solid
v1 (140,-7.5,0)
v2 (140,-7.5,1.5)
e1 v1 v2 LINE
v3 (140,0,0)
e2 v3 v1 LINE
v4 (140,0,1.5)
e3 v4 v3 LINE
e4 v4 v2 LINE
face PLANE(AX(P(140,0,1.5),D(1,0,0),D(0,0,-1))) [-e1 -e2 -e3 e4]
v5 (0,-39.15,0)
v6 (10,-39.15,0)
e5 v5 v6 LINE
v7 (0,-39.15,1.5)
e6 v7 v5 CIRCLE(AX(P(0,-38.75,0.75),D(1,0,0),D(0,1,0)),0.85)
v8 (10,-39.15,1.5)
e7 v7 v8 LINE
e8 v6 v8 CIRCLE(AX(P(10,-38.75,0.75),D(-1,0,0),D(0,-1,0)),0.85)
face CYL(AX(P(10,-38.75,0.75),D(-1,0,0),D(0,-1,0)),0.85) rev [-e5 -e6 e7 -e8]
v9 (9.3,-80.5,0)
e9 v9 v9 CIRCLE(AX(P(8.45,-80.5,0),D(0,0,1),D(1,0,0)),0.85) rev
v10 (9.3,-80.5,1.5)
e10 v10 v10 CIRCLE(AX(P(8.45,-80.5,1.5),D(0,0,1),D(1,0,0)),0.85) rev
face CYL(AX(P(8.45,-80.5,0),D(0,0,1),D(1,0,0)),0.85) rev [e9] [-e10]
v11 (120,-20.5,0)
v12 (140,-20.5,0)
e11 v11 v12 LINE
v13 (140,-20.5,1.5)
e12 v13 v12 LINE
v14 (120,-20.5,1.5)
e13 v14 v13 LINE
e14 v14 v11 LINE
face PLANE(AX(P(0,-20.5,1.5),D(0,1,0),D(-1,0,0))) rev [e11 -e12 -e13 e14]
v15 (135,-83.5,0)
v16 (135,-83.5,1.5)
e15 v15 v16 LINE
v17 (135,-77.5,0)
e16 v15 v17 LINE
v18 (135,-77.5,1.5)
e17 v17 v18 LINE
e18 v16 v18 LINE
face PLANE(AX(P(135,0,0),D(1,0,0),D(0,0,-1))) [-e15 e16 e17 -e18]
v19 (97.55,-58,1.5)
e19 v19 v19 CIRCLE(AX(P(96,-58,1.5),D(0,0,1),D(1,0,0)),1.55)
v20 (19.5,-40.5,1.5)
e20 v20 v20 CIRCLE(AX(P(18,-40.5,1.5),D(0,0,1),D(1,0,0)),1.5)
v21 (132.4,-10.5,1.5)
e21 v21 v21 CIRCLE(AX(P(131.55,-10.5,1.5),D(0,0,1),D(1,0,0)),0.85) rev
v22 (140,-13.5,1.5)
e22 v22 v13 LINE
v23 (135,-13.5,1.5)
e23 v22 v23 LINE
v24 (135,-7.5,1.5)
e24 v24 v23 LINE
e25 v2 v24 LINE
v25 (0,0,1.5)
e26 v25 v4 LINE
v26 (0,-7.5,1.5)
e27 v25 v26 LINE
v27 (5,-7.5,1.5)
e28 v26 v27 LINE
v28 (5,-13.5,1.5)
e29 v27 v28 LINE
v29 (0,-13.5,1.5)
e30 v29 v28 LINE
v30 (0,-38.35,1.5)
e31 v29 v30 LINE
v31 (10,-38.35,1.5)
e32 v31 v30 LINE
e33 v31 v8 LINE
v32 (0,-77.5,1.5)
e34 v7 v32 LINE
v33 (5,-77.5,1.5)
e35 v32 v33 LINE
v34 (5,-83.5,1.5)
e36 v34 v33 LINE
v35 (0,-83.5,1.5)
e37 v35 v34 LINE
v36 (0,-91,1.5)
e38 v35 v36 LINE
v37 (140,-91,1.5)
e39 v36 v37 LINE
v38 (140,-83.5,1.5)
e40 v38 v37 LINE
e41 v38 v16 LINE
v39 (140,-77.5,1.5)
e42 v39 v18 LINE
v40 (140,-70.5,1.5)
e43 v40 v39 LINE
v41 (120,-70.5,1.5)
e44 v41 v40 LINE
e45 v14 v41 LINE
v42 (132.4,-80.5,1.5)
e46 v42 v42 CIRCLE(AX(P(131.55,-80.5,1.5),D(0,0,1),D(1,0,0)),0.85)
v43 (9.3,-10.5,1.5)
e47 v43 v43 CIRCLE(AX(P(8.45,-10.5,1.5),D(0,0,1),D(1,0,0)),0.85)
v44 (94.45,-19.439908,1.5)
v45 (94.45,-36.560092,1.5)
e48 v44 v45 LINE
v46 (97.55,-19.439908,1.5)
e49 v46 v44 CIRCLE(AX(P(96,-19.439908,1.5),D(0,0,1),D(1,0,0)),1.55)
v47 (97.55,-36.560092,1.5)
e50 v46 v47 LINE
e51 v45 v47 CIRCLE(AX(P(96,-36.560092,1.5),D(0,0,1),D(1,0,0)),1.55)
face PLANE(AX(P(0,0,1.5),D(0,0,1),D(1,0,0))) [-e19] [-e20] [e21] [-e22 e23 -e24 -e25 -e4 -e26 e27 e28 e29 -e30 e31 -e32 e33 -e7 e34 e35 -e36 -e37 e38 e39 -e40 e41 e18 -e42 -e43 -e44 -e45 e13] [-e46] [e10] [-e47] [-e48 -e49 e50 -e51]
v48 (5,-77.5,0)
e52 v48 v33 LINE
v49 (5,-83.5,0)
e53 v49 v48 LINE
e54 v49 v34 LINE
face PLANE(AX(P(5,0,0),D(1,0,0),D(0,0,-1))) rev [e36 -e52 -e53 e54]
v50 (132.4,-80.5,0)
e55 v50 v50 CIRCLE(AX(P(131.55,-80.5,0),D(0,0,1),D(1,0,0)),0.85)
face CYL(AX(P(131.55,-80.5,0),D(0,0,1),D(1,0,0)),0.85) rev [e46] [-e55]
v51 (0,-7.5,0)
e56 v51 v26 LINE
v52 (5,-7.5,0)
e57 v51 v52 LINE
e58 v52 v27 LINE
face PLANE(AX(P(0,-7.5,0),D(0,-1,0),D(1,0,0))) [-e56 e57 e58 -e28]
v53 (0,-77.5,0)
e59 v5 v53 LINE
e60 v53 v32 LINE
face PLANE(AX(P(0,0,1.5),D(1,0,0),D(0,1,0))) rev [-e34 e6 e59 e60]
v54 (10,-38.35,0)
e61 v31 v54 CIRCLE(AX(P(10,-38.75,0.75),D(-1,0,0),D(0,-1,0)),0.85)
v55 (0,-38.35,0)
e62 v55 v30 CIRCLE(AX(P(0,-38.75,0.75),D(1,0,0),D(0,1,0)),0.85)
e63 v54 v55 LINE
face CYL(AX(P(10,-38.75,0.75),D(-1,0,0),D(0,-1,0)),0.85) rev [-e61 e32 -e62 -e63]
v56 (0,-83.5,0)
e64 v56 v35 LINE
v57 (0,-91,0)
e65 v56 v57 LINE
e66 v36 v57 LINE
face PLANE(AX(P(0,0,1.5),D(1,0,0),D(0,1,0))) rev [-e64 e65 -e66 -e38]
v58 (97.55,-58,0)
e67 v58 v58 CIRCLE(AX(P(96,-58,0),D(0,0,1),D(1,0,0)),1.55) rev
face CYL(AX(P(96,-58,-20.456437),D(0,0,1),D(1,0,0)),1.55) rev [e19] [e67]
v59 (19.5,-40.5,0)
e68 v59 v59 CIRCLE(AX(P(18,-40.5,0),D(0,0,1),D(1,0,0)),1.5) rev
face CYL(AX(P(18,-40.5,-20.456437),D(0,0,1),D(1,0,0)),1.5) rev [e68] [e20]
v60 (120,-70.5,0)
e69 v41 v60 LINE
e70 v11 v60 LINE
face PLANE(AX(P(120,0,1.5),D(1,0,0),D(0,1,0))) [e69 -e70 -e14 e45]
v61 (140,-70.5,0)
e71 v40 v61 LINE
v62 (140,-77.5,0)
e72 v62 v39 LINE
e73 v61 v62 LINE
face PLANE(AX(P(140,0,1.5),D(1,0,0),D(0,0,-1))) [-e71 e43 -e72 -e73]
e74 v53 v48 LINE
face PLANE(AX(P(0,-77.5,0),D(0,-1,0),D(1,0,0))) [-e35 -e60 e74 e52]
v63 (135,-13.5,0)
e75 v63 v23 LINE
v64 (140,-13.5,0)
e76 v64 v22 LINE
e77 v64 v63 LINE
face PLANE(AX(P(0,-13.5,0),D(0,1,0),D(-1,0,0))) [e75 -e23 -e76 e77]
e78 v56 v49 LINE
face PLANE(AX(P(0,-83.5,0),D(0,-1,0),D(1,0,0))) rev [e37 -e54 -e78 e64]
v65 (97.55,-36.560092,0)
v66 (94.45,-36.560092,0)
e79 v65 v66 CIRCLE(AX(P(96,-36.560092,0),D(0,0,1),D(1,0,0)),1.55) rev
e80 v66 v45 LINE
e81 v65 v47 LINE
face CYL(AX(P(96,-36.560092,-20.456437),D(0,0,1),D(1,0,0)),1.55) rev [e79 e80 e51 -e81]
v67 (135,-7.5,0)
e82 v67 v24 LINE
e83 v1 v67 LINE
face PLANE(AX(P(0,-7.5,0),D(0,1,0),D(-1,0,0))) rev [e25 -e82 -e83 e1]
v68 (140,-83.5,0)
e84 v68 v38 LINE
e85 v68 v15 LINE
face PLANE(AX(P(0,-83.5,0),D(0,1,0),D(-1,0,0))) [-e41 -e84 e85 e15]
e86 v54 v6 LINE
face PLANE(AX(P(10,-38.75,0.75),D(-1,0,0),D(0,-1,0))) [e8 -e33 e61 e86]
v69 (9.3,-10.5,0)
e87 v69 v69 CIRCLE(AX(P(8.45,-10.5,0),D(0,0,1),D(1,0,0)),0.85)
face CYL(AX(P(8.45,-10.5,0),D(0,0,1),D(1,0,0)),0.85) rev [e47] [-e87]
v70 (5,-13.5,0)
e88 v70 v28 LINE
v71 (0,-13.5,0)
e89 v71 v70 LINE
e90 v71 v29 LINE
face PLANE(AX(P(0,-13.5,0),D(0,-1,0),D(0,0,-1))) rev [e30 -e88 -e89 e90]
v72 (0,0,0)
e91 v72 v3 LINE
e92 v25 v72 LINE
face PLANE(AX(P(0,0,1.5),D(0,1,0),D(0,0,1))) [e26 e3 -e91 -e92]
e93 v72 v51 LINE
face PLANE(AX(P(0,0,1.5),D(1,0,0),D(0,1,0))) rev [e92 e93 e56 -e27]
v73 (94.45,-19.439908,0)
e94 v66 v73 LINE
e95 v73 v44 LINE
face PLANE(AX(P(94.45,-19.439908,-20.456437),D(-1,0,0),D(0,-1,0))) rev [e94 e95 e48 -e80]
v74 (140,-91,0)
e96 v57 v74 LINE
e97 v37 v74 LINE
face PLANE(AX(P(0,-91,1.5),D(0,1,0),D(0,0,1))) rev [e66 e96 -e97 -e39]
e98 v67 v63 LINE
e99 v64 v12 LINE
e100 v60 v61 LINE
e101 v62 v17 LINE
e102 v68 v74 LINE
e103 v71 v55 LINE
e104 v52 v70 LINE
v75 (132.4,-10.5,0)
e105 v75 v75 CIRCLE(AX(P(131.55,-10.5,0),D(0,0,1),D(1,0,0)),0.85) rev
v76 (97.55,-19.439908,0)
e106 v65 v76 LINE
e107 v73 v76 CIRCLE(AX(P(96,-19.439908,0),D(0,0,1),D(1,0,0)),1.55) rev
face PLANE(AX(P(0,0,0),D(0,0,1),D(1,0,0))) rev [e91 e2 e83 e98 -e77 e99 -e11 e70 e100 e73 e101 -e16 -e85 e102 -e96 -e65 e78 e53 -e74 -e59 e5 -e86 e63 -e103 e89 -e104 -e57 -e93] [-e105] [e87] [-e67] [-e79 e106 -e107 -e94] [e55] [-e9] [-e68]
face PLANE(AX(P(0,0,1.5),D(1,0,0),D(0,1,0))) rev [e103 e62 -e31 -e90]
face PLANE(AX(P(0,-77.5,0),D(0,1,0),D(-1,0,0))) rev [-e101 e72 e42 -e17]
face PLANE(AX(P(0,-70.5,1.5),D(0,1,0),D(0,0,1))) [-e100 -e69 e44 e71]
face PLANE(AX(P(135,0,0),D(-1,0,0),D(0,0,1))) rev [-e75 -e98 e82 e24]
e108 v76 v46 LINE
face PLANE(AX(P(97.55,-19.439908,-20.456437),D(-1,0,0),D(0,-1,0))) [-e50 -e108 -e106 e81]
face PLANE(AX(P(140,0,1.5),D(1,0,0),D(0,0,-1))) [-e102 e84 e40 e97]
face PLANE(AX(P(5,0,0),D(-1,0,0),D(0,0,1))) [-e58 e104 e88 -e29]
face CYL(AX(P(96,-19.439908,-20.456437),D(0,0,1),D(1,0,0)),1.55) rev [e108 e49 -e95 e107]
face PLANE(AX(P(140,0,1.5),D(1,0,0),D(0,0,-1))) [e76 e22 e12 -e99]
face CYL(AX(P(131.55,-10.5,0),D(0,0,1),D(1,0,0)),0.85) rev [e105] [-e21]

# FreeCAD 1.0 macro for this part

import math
import FreeCAD as App
import Part
import Sketcher


def add_polygon(sketch, points):
    """Adds a closed chain of lines whose ends are joined by coincident constraints."""
    first, n = sketch.GeometryCount, len(points)
    for a, b in zip(points, points[1:] + points[:1]):
        sketch.addGeometry(Part.LineSegment(App.Vector(*a, 0), App.Vector(*b, 0)), False)
    for i in range(n):
        sketch.addConstraint(Sketcher.Constraint("Coincident", first + i, 2, first + (i + 1) % n, 1))

doc = App.newDocument("Part")
body = doc.addObject("PartDesign::Body", "Body")

# Sketch on XY plane
sketch1 = body.newObject("Sketcher::SketchObject", "Sketch")
sketch1.AttachmentSupport = (doc.getObject("XY_Plane"), [""])
sketch1.MapMode = "FlatFace"
add_polygon(sketch1, [(140, 0), (0, 0), (0, -91), (140, -91), (140, -70), (120, -70), (120, -20), (140, -20)])  # lines 0-7
sketch1.addConstraint(Sketcher.Constraint("Horizontal", 0))
sketch1.addConstraint(Sketcher.Constraint("Vertical", 1))
sketch1.addConstraint(Sketcher.Constraint("Horizontal", 2))
sketch1.addConstraint(Sketcher.Constraint("Vertical", 3))
sketch1.addConstraint(Sketcher.Constraint("Horizontal", 4))
sketch1.addConstraint(Sketcher.Constraint("Vertical", 5))
sketch1.addConstraint(Sketcher.Constraint("Horizontal", 6))
sketch1.addConstraint(Sketcher.Constraint("Vertical", 7))
sketch1.addConstraint(Sketcher.Constraint("Coincident", 0, 2, -1, 1))
sketch1.addConstraint(Sketcher.Constraint("Vertical", 3, 2, 6, 2))
sketch1.addConstraint(Sketcher.Constraint("Equal", 3, 7))
sketch1.addConstraint(Sketcher.Constraint("DistanceX", 0, 2, 0, 1, 140.0))
sketch1.addConstraint(Sketcher.Constraint("DistanceX", 4, 2, 4, 1, 20.0))
sketch1.addConstraint(Sketcher.Constraint("DistanceY", 1, 2, 1, 1, 91.0))
sketch1.addConstraint(Sketcher.Constraint("DistanceY", 5, 1, 5, 2, 50.0))
pad1 = body.newObject("PartDesign::Pad", "Pad")
pad1.Profile = sketch1
pad1.Length = 1.5

# Sketch on XY plane
sketch2 = body.newObject("Sketcher::SketchObject", "Sketch001")
sketch2.AttachmentSupport = (doc.getObject("XY_Plane"), [""])
sketch2.MapMode = "FlatFace"
sketch2.AttachmentOffset = App.Placement(App.Vector(0, 0, 1.5), App.Rotation())
sketch2.addGeometry(Part.Circle(App.Vector(18, -40.5, 0), App.Vector(0, 0, 1), 1.5), False)
sketch2.addGeometry(Part.Circle(App.Vector(96, -58, 0), App.Vector(0, 0, 1), 1.6), False)
sketch2.addGeometry(Part.LineSegment(App.Vector(97.5, -36.6, 0), App.Vector(97.5, -19.4, 0)), False)
sketch2.addGeometry(Part.ArcOfCircle(Part.Circle(App.Vector(96, -19.4, 0), App.Vector(0, 0, 1), 1.6), math.radians(0), math.radians(180)), False)
sketch2.addGeometry(Part.LineSegment(App.Vector(94.5, -19.4, 0), App.Vector(94.5, -36.6, 0)), False)
sketch2.addGeometry(Part.ArcOfCircle(Part.Circle(App.Vector(96, -36.6, 0), App.Vector(0, 0, 1), 1.6), math.radians(180), math.radians(360)), False)
sketch2.addConstraint(Sketcher.Constraint("Tangent", 2, 2, 3, 1))
sketch2.addConstraint(Sketcher.Constraint("Tangent", 3, 2, 4, 1))
sketch2.addConstraint(Sketcher.Constraint("Tangent", 4, 2, 5, 1))
sketch2.addConstraint(Sketcher.Constraint("Tangent", 5, 2, 2, 1))
sketch2.addConstraint(Sketcher.Constraint("Vertical", 2))
sketch2.addConstraint(Sketcher.Constraint("Vertical", 4))
sketch2.addConstraint(Sketcher.Constraint("Equal", 1, 3))
sketch2.addConstraint(Sketcher.Constraint("Vertical", 1, 3, 3, 3))
sketch2.addConstraint(Sketcher.Constraint("Diameter", 0, 3.0))
sketch2.addConstraint(Sketcher.Constraint("Diameter", 1, 3.1))
sketch2.addConstraint(Sketcher.Constraint("DistanceX", -1, 1, 0, 3, 18.0))
sketch2.addConstraint(Sketcher.Constraint("DistanceX", -1, 1, 1, 3, 96.0))
sketch2.addConstraint(Sketcher.Constraint("DistanceY", 1, 3, -1, 1, 58.0))
sketch2.addConstraint(Sketcher.Constraint("DistanceY", 0, 3, -1, 1, 40.5))
sketch2.addConstraint(Sketcher.Constraint("DistanceY", 2, 1, 2, 2, 17.120183))
sketch2.addConstraint(Sketcher.Constraint("DistanceY", 3, 3, -1, 1, 19.439908))
pocket1 = body.newObject("PartDesign::Pocket", "Pocket")
pocket1.Profile = sketch2
pocket1.Length = 1.5

# Sketch on XY plane
sketch3 = body.newObject("Sketcher::SketchObject", "Sketch002")
sketch3.AttachmentSupport = (doc.getObject("XY_Plane"), [""])
sketch3.MapMode = "FlatFace"
sketch3.AttachmentOffset = App.Placement(App.Vector(0, 0, 1.5), App.Rotation())
add_polygon(sketch3, [(0, -7.5), (0, -13.5), (5, -13.5), (5, -7.5)])  # lines 0-3
add_polygon(sketch3, [(0, -77.5), (0, -83.5), (5, -83.5), (5, -77.5)])  # lines 4-7
add_polygon(sketch3, [(135, -7.5), (135, -13.5), (140, -13.5), (140, -7.5)])  # lines 8-11
add_polygon(sketch3, [(135, -77.5), (135, -83.5), (140, -83.5), (140, -77.5)])  # lines 12-15
sketch3.addGeometry(Part.Circle(App.Vector(8.4, -10.5, 0), App.Vector(0, 0, 1), 0.8), False)  # 16
sketch3.addGeometry(Part.Circle(App.Vector(8.4, -80.5, 0), App.Vector(0, 0, 1), 0.8), False)  # 17
sketch3.addGeometry(Part.Circle(App.Vector(131.6, -10.5, 0), App.Vector(0, 0, 1), 0.8), False)  # 18
sketch3.addGeometry(Part.Circle(App.Vector(131.6, -80.5, 0), App.Vector(0, 0, 1), 0.8), False)  # 19
sketch3.addConstraint(Sketcher.Constraint("Vertical", 0))
sketch3.addConstraint(Sketcher.Constraint("Horizontal", 1))
sketch3.addConstraint(Sketcher.Constraint("Vertical", 2))
sketch3.addConstraint(Sketcher.Constraint("Horizontal", 3))
sketch3.addConstraint(Sketcher.Constraint("Vertical", 4))
sketch3.addConstraint(Sketcher.Constraint("Horizontal", 5))
sketch3.addConstraint(Sketcher.Constraint("Vertical", 6))
sketch3.addConstraint(Sketcher.Constraint("Horizontal", 7))
sketch3.addConstraint(Sketcher.Constraint("Vertical", 8))
sketch3.addConstraint(Sketcher.Constraint("Horizontal", 9))
sketch3.addConstraint(Sketcher.Constraint("Vertical", 10))
sketch3.addConstraint(Sketcher.Constraint("Horizontal", 11))
sketch3.addConstraint(Sketcher.Constraint("Vertical", 12))
sketch3.addConstraint(Sketcher.Constraint("Horizontal", 13))
sketch3.addConstraint(Sketcher.Constraint("Vertical", 14))
sketch3.addConstraint(Sketcher.Constraint("Horizontal", 15))
sketch3.addConstraint(Sketcher.Constraint("Equal", 16, 17))
sketch3.addConstraint(Sketcher.Constraint("Equal", 17, 18))
sketch3.addConstraint(Sketcher.Constraint("Equal", 18, 19))
sketch3.addConstraint(Sketcher.Constraint("PointOnObject", 0, 2, -2))
sketch3.addConstraint(Sketcher.Constraint("PointOnObject", 4, 2, -2))
sketch3.addConstraint(Sketcher.Constraint("Horizontal", 16, 3, 18, 3))
sketch3.addConstraint(Sketcher.Constraint("Horizontal", 17, 3, 19, 3))
sketch3.addConstraint(Sketcher.Constraint("Horizontal", 1, 2, 8, 2))
sketch3.addConstraint(Sketcher.Constraint("Horizontal", 3, 2, 10, 2))
sketch3.addConstraint(Sketcher.Constraint("Horizontal", 5, 2, 12, 2))
sketch3.addConstraint(Sketcher.Constraint("Horizontal", 7, 2, 14, 2))
sketch3.addConstraint(Sketcher.Constraint("Vertical", 16, 3, 17, 3))
sketch3.addConstraint(Sketcher.Constraint("Vertical", 18, 3, 19, 3))
sketch3.addConstraint(Sketcher.Constraint("Vertical", 2, 2, 5, 2))
sketch3.addConstraint(Sketcher.Constraint("Vertical", 11, 2, 12, 2))
sketch3.addConstraint(Sketcher.Constraint("Vertical", 10, 2, 13, 2))
sketch3.addConstraint(Sketcher.Constraint("Equal", 7, 9))
sketch3.addConstraint(Sketcher.Constraint("Equal", 2, 4))
sketch3.addConstraint(Sketcher.Constraint("Diameter", 16, 1.7))
sketch3.addConstraint(Sketcher.Constraint("DistanceX", 1, 1, 1, 2, 5.0))
sketch3.addConstraint(Sketcher.Constraint("DistanceY", 0, 2, 0, 1, 6.0))
sketch3.addConstraint(Sketcher.Constraint("DistanceX", -1, 1, 8, 2, 135.0))
sketch3.addConstraint(Sketcher.Constraint("DistanceY", 17, 3, 16, 3, 70.0))
sketch3.addConstraint(Sketcher.Constraint("DistanceY", 0, 2, 16, 3, 3.0))
sketch3.addConstraint(Sketcher.Constraint("DistanceY", 4, 2, 17, 3, 3.0))
sketch3.addConstraint(Sketcher.Constraint("DistanceY", 16, 3, -1, 1, 10.5))
sketch3.addConstraint(Sketcher.Constraint("DistanceX", 16, 3, 18, 3, 123.1))
sketch3.addConstraint(Sketcher.Constraint("DistanceX", -1, 1, 16, 3, 8.45))
pocket2 = body.newObject("PartDesign::Pocket", "Pocket001")
pocket2.Profile = sketch3
pocket2.Type = "ThroughAll"

# Sketch on YZ plane
sketch4 = body.newObject("Sketcher::SketchObject", "Sketch003")
sketch4.AttachmentSupport = (doc.getObject("YZ_Plane"), [""])
sketch4.MapMode = "FlatFace"
sketch4.addGeometry(Part.Circle(App.Vector(-38.8, 0.8, 0), App.Vector(0, 0, 1), 0.8), False)
sketch4.addGeometry(Part.Circle(App.Vector(31.2, 0.8, 0), App.Vector(0, 0, 1), 0.8), False)
sketch4.addConstraint(Sketcher.Constraint("Equal", 0, 1))
sketch4.addConstraint(Sketcher.Constraint("Horizontal", 0, 3, 1, 3))
sketch4.addConstraint(Sketcher.Constraint("Diameter", 0, 1.7))
sketch4.addConstraint(Sketcher.Constraint("DistanceX", 0, 3, 1, 3, 70.0))
sketch4.addConstraint(Sketcher.Constraint("DistanceX", 0, 3, -1, 1, 38.75))
sketch4.addConstraint(Sketcher.Constraint("DistanceY", -1, 1, 0, 3, 0.75))
pocket3 = body.newObject("PartDesign::Pocket", "Pocket002")
pocket3.Profile = sketch4
pocket3.Length = 10
pocket3.Reversed = True

doc.recompute()
